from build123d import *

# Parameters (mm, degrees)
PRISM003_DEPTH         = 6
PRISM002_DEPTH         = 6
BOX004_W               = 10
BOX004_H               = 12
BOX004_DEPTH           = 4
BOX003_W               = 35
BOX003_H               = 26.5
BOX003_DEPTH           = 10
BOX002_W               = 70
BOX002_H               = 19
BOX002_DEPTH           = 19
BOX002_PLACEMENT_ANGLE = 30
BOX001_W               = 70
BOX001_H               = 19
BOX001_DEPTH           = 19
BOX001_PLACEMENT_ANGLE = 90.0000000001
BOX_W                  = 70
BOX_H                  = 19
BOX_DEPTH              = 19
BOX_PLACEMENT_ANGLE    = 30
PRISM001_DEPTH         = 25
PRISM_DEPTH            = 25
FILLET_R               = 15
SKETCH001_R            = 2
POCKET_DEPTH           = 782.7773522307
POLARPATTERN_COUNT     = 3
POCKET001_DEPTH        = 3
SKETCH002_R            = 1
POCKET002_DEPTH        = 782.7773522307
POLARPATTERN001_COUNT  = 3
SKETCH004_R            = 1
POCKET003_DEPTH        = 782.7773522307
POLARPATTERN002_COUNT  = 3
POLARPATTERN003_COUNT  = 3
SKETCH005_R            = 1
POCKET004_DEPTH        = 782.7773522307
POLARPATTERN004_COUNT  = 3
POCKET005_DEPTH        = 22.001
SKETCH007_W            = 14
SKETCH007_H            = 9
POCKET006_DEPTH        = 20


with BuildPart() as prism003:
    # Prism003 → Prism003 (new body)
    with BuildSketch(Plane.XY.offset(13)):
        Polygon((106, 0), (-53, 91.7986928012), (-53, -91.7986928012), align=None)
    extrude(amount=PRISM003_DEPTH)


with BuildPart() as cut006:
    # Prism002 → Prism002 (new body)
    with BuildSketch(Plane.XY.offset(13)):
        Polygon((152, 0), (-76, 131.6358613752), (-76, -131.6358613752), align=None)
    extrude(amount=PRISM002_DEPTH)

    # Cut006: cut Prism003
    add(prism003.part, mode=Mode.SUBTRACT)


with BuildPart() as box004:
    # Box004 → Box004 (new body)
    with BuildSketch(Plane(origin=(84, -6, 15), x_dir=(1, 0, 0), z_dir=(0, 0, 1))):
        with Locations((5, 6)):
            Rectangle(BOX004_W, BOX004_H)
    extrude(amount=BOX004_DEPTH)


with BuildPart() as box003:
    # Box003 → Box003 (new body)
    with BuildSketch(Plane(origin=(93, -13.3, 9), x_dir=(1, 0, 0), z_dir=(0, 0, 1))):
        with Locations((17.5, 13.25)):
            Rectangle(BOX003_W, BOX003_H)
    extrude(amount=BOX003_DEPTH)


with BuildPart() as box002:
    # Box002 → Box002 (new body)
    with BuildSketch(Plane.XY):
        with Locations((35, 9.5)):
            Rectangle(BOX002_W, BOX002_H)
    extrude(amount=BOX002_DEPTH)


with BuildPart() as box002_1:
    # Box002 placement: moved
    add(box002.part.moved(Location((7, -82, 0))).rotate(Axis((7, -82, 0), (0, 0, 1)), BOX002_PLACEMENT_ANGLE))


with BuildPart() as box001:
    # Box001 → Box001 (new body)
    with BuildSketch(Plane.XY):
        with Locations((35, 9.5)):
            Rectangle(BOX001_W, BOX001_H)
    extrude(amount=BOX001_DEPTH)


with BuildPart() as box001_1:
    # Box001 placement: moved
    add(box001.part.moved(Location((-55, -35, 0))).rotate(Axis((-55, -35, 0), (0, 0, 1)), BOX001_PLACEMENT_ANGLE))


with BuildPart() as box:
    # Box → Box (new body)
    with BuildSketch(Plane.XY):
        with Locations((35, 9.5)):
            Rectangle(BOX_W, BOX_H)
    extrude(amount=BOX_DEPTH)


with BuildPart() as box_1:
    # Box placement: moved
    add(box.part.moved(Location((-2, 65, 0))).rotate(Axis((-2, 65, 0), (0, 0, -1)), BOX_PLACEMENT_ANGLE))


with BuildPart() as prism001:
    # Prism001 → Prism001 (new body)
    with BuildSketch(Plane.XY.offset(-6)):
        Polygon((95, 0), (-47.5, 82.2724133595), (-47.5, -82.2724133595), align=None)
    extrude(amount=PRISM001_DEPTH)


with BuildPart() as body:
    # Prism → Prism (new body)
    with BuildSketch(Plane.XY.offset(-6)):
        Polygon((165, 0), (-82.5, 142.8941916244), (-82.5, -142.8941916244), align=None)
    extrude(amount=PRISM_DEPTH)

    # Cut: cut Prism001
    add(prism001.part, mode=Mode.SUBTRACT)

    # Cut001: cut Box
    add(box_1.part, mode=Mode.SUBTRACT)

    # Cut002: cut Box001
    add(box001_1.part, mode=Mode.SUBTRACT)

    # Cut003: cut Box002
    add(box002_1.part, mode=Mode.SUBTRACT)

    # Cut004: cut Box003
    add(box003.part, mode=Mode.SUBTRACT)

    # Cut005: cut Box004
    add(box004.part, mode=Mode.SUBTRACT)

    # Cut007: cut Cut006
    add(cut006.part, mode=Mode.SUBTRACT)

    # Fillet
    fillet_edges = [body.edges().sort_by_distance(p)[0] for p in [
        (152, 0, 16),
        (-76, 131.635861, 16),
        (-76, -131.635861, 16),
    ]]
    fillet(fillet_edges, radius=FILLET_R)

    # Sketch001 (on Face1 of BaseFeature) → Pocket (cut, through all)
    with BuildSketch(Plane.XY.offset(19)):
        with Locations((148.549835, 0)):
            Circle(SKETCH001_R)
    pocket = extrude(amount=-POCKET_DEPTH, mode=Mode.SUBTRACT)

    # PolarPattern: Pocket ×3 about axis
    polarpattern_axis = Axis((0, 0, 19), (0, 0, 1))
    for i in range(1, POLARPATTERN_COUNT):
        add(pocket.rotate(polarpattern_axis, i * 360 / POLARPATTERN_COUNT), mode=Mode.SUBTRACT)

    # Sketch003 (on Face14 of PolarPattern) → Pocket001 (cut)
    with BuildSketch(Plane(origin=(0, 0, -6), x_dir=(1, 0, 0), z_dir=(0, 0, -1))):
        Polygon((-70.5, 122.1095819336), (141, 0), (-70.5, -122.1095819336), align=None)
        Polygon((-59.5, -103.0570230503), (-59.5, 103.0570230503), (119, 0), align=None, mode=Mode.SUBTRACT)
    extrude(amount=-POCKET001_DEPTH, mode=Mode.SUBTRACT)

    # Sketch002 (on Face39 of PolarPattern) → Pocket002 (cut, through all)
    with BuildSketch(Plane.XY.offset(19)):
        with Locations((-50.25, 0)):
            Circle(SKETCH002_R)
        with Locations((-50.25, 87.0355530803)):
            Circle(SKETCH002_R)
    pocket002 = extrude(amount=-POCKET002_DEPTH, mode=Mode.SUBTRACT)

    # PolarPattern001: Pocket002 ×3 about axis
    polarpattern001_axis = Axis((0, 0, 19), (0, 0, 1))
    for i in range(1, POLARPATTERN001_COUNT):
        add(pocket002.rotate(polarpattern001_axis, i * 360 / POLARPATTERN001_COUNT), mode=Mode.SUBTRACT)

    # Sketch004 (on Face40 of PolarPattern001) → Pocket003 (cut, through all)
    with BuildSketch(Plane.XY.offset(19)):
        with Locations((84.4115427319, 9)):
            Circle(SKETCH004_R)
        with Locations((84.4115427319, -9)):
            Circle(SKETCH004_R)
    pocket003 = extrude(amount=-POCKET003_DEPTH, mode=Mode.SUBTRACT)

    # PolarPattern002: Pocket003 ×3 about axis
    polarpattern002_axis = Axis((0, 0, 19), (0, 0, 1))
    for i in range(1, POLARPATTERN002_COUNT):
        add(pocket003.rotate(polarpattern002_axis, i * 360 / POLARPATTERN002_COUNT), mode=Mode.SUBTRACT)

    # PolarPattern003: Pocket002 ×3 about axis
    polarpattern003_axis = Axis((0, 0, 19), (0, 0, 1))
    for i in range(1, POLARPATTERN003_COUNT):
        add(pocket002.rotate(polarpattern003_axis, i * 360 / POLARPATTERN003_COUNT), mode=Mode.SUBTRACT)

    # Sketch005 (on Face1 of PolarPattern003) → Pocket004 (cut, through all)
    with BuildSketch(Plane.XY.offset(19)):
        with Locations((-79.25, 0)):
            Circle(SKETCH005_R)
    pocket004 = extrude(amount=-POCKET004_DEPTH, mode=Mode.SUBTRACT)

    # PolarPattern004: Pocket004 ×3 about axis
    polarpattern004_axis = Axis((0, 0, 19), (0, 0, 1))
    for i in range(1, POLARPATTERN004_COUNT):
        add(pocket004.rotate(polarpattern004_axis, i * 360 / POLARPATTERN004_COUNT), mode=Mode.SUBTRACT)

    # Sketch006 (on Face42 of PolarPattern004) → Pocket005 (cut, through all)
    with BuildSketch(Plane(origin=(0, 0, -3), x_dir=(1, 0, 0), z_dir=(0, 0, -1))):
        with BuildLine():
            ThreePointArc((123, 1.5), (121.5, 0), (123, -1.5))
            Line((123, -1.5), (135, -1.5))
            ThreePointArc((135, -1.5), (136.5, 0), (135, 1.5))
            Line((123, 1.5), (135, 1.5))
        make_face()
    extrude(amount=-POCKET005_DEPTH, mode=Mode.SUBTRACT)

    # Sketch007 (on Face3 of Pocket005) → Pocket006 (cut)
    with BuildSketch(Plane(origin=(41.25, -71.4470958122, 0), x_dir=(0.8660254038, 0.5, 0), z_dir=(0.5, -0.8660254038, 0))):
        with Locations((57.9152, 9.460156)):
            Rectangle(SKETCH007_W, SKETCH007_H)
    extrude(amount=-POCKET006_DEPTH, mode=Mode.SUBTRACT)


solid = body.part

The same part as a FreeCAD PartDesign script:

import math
import FreeCAD as App
import Part
import Sketcher

V = App.Vector
Q = App.Units.Quantity


def edges_at(feature, points):
    """Names of the edges that pass closest to the given points."""
    edges = feature.Shape.Edges
    near = lambda p: min(range(len(edges)), key=lambda i: edges[i].distToShape(Part.Vertex(*p))[0])
    return sorted({f"Edge{near(p) + 1}" for p in points})

doc = App.newDocument("Part")
body = doc.addObject("PartDesign::Body", "Body")

# Sketch on XY plane
sketch1 = body.newObject("Sketcher::SketchObject", "Sketch")
sketch1.AttachmentSupport = (doc.getObject("XY_Plane"), [""])
sketch1.MapMode = "FlatFace"
sketch1.AttachmentOffset = App.Placement(V(0, 0, 13), App.Rotation())
sketch1.addGeometry([
    Part.LineSegment(V(106, 0, 0), V(-53, 91.798693, 0)),
    Part.LineSegment(V(-53, 91.798693, 0), V(-53, -91.798693, 0)),
    Part.LineSegment(V(-53, -91.798693, 0), V(106, 0, 0)),
], False)
sketch1.addConstraint([
    Sketcher.Constraint("Coincident", 0, 2, 1, 1),
    Sketcher.Constraint("Coincident", 1, 2, 2, 1),
    Sketcher.Constraint("Coincident", 2, 2, 0, 1),
    Sketcher.Constraint("Vertical", 1),
    Sketcher.Constraint("PointOnObject", 2, 2, -1),
    Sketcher.Constraint("Equal", 0, 2),
    Sketcher.Constraint("Angle", 0, Q("150 deg")),
    Sketcher.Constraint("DistanceX", 0, 2, -1, 1, 53.0),
    Sketcher.Constraint("DistanceX", -1, 1, 2, 2, 106.0),
])
pad1 = body.newObject("PartDesign::Pad", "Pad")
pad1.Profile = sketch1
pad1.Length = 6
body2 = doc.addObject("PartDesign::Body", "Body001")

# Sketch on XY plane
sketch2 = body2.newObject("Sketcher::SketchObject", "Sketch001")
sketch2.AttachmentSupport = (doc.getObject("XY_Plane001"), [""])
sketch2.MapMode = "FlatFace"
sketch2.AttachmentOffset = App.Placement(V(0, 0, 13), App.Rotation())
sketch2.addGeometry([
    Part.LineSegment(V(152, 0, 0), V(-76, 131.635861, 0)),
    Part.LineSegment(V(-76, 131.635861, 0), V(-76, -131.635861, 0)),
    Part.LineSegment(V(-76, -131.635861, 0), V(152, 0, 0)),
], False)
sketch2.addConstraint([
    Sketcher.Constraint("Coincident", 0, 2, 1, 1),
    Sketcher.Constraint("Coincident", 1, 2, 2, 1),
    Sketcher.Constraint("Coincident", 2, 2, 0, 1),
    Sketcher.Constraint("Vertical", 1),
    Sketcher.Constraint("PointOnObject", 2, 2, -1),
    Sketcher.Constraint("Equal", 0, 2),
    Sketcher.Constraint("Angle", 0, Q("150 deg")),
    Sketcher.Constraint("DistanceX", 0, 2, -1, 1, 76.0),
    Sketcher.Constraint("DistanceX", -1, 1, 2, 2, 152.0),
])
pad2 = body2.newObject("PartDesign::Pad", "Pad001")
pad2.Profile = sketch2
pad2.Length = 6
doc.recompute()

boolean = body2.newObject("PartDesign::Boolean", "Boolean")
boolean.Type = "Cut"
boolean.addObjects([body])
body3 = doc.addObject("PartDesign::Body", "Body002")

# Sketch on XY plane
sketch3 = body3.newObject("Sketcher::SketchObject", "Sketch002")
sketch3.AttachmentSupport = (doc.getObject("XY_Plane002"), [""])
sketch3.MapMode = "FlatFace"
sketch3.AttachmentOffset = App.Placement(V(0, 0, 15), App.Rotation())
sketch3.addGeometry([
    Part.LineSegment(V(84, 6, 0), V(84, -6, 0)),
    Part.LineSegment(V(84, -6, 0), V(94, -6, 0)),
    Part.LineSegment(V(94, -6, 0), V(94, 6, 0)),
    Part.LineSegment(V(94, 6, 0), V(84, 6, 0)),
], False)
sketch3.addConstraint([
    Sketcher.Constraint("Coincident", 0, 2, 1, 1),
    Sketcher.Constraint("Coincident", 1, 2, 2, 1),
    Sketcher.Constraint("Coincident", 2, 2, 3, 1),
    Sketcher.Constraint("Coincident", 3, 2, 0, 1),
    Sketcher.Constraint("Vertical", 0),
    Sketcher.Constraint("Horizontal", 1),
    Sketcher.Constraint("Vertical", 2),
    Sketcher.Constraint("Horizontal", 3),
    Sketcher.Constraint("DistanceX", 1, 1, 1, 2, 10.0),
    Sketcher.Constraint("DistanceY", 0, 2, 0, 1, 12.0),
    Sketcher.Constraint("DistanceX", -1, 1, 0, 2, 84.0),
    Sketcher.Constraint("DistanceY", 0, 2, -1, 1, 6.0),
])
pad3 = body3.newObject("PartDesign::Pad", "Pad002")
pad3.Profile = sketch3
pad3.Length = 4
body4 = doc.addObject("PartDesign::Body", "Body003")

# Sketch on XY plane
sketch4 = body4.newObject("Sketcher::SketchObject", "Sketch003")
sketch4.AttachmentSupport = (doc.getObject("XY_Plane003"), [""])
sketch4.MapMode = "FlatFace"
sketch4.AttachmentOffset = App.Placement(V(0, 0, 9), App.Rotation())
sketch4.addGeometry([
    Part.LineSegment(V(93, 13.2, 0), V(93, -13.3, 0)),
    Part.LineSegment(V(93, -13.3, 0), V(128, -13.3, 0)),
    Part.LineSegment(V(128, -13.3, 0), V(128, 13.2, 0)),
    Part.LineSegment(V(128, 13.2, 0), V(93, 13.2, 0)),
], False)
sketch4.addConstraint([
    Sketcher.Constraint("Coincident", 0, 2, 1, 1),
    Sketcher.Constraint("Coincident", 1, 2, 2, 1),
    Sketcher.Constraint("Coincident", 2, 2, 3, 1),
    Sketcher.Constraint("Coincident", 3, 2, 0, 1),
    Sketcher.Constraint("Vertical", 0),
    Sketcher.Constraint("Horizontal", 1),
    Sketcher.Constraint("Vertical", 2),
    Sketcher.Constraint("Horizontal", 3),
    Sketcher.Constraint("DistanceX", 1, 1, 1, 2, 35.0),
    Sketcher.Constraint("DistanceY", 0, 2, 0, 1, 26.5),
    Sketcher.Constraint("DistanceX", -1, 1, 0, 2, 93.0),
    Sketcher.Constraint("DistanceY", 0, 2, -1, 1, 13.3),
])
pad4 = body4.newObject("PartDesign::Pad", "Pad003")
pad4.Profile = sketch4
pad4.Length = 10
body5 = doc.addObject("PartDesign::Body", "Body004")

# Sketch on XY plane
sketch5 = body5.newObject("Sketcher::SketchObject", "Sketch004")
sketch5.AttachmentSupport = (doc.getObject("XY_Plane004"), [""])
sketch5.MapMode = "FlatFace"
sketch5.addGeometry([
    Part.LineSegment(V(0, 19, 0), V(0, 0, 0)),
    Part.LineSegment(V(0, 0, 0), V(70, 0, 0)),
    Part.LineSegment(V(70, 0, 0), V(70, 19, 0)),
    Part.LineSegment(V(70, 19, 0), V(0, 19, 0)),
], False)
sketch5.addConstraint([
    Sketcher.Constraint("Coincident", 0, 2, 1, 1),
    Sketcher.Constraint("Coincident", 1, 2, 2, 1),
    Sketcher.Constraint("Coincident", 2, 2, 3, 1),
    Sketcher.Constraint("Coincident", 3, 2, 0, 1),
    Sketcher.Constraint("Vertical", 0),
    Sketcher.Constraint("Horizontal", 1),
    Sketcher.Constraint("Vertical", 2),
    Sketcher.Constraint("Horizontal", 3),
    Sketcher.Constraint("Coincident", 0, 2, -1, 1),
    Sketcher.Constraint("DistanceX", 1, 1, 1, 2, 70.0),
    Sketcher.Constraint("DistanceY", 0, 2, 0, 1, 19.0),
])
pad5 = body5.newObject("PartDesign::Pad", "Pad004")
pad5.Profile = sketch5
pad5.Length = 19
body6 = doc.addObject("PartDesign::Body", "Body005")
doc.recompute()

body5.Placement = App.Placement(V(7, -82, 0), App.Rotation(V(0, 0, 1), 30))
boolean2 = body6.newObject("PartDesign::Boolean", "Boolean001")
boolean2.Type = "Fuse"
boolean2.addObjects([body5])
body7 = doc.addObject("PartDesign::Body", "Body006")

# Sketch on XY plane
sketch6 = body7.newObject("Sketcher::SketchObject", "Sketch005")
sketch6.AttachmentSupport = (doc.getObject("XY_Plane006"), [""])
sketch6.MapMode = "FlatFace"
sketch6.addGeometry([
    Part.LineSegment(V(0, 19, 0), V(0, 0, 0)),
    Part.LineSegment(V(0, 0, 0), V(70, 0, 0)),
    Part.LineSegment(V(70, 0, 0), V(70, 19, 0)),
    Part.LineSegment(V(70, 19, 0), V(0, 19, 0)),
], False)
sketch6.addConstraint([
    Sketcher.Constraint("Coincident", 0, 2, 1, 1),
    Sketcher.Constraint("Coincident", 1, 2, 2, 1),
    Sketcher.Constraint("Coincident", 2, 2, 3, 1),
    Sketcher.Constraint("Coincident", 3, 2, 0, 1),
    Sketcher.Constraint("Vertical", 0),
    Sketcher.Constraint("Horizontal", 1),
    Sketcher.Constraint("Vertical", 2),
    Sketcher.Constraint("Horizontal", 3),
    Sketcher.Constraint("Coincident", 0, 2, -1, 1),
    Sketcher.Constraint("DistanceX", 1, 1, 1, 2, 70.0),
    Sketcher.Constraint("DistanceY", 0, 2, 0, 1, 19.0),
])
pad6 = body7.newObject("PartDesign::Pad", "Pad005")
pad6.Profile = sketch6
pad6.Length = 19
body8 = doc.addObject("PartDesign::Body", "Body007")
doc.recompute()

body7.Placement = App.Placement(V(-55, -35, 0), App.Rotation(V(0, 0, 1), 90))
boolean3 = body8.newObject("PartDesign::Boolean", "Boolean002")
boolean3.Type = "Fuse"
boolean3.addObjects([body7])
body9 = doc.addObject("PartDesign::Body", "Body008")

# Sketch on XY plane
sketch7 = body9.newObject("Sketcher::SketchObject", "Sketch006")
sketch7.AttachmentSupport = (doc.getObject("XY_Plane008"), [""])
sketch7.MapMode = "FlatFace"
sketch7.addGeometry([
    Part.LineSegment(V(0, 19, 0), V(0, 0, 0)),
    Part.LineSegment(V(0, 0, 0), V(70, 0, 0)),
    Part.LineSegment(V(70, 0, 0), V(70, 19, 0)),
    Part.LineSegment(V(70, 19, 0), V(0, 19, 0)),
], False)
sketch7.addConstraint([
    Sketcher.Constraint("Coincident", 0, 2, 1, 1),
    Sketcher.Constraint("Coincident", 1, 2, 2, 1),
    Sketcher.Constraint("Coincident", 2, 2, 3, 1),
    Sketcher.Constraint("Coincident", 3, 2, 0, 1),
    Sketcher.Constraint("Vertical", 0),
    Sketcher.Constraint("Horizontal", 1),
    Sketcher.Constraint("Vertical", 2),
    Sketcher.Constraint("Horizontal", 3),
    Sketcher.Constraint("Coincident", 0, 2, -1, 1),
    Sketcher.Constraint("DistanceX", 1, 1, 1, 2, 70.0),
    Sketcher.Constraint("DistanceY", 0, 2, 0, 1, 19.0),
])
pad7 = body9.newObject("PartDesign::Pad", "Pad006")
pad7.Profile = sketch7
pad7.Length = 19
body10 = doc.addObject("PartDesign::Body", "Body009")
doc.recompute()

body9.Placement = App.Placement(V(-2, 65, 0), App.Rotation(V(0, 0, -1), 30))
boolean4 = body10.newObject("PartDesign::Boolean", "Boolean003")
boolean4.Type = "Fuse"
boolean4.addObjects([body9])
body11 = doc.addObject("PartDesign::Body", "Body010")

# Sketch on XY plane
sketch8 = body11.newObject("Sketcher::SketchObject", "Sketch007")
sketch8.AttachmentSupport = (doc.getObject("XY_Plane010"), [""])
sketch8.MapMode = "FlatFace"
sketch8.AttachmentOffset = App.Placement(V(0, 0, -6), App.Rotation())
sketch8.addGeometry([
    Part.LineSegment(V(95, 0, 0), V(-47.5, 82.272413, 0)),
    Part.LineSegment(V(-47.5, 82.272413, 0), V(-47.5, -82.272413, 0)),
    Part.LineSegment(V(-47.5, -82.272413, 0), V(95, 0, 0)),
], False)
sketch8.addConstraint([
    Sketcher.Constraint("Coincident", 0, 2, 1, 1),
    Sketcher.Constraint("Coincident", 1, 2, 2, 1),
    Sketcher.Constraint("Coincident", 2, 2, 0, 1),
    Sketcher.Constraint("Vertical", 1),
    Sketcher.Constraint("PointOnObject", 2, 2, -1),
    Sketcher.Constraint("Equal", 0, 2),
    Sketcher.Constraint("Angle", 0, Q("150 deg")),
    Sketcher.Constraint("DistanceX", -1, 1, 2, 2, 95.0),
    Sketcher.Constraint("DistanceX", 0, 2, -1, 1, 47.5),
])
pad8 = body11.newObject("PartDesign::Pad", "Pad007")
pad8.Profile = sketch8
pad8.Length = 25
body12 = doc.addObject("PartDesign::Body", "Body011")

# Sketch on XY plane
sketch9 = body12.newObject("Sketcher::SketchObject", "Sketch008")
sketch9.AttachmentSupport = (doc.getObject("XY_Plane011"), [""])
sketch9.MapMode = "FlatFace"
sketch9.AttachmentOffset = App.Placement(V(0, 0, -6), App.Rotation())
sketch9.addGeometry([
    Part.LineSegment(V(165, 0, 0), V(-82.5, 142.894192, 0)),
    Part.LineSegment(V(-82.5, 142.894192, 0), V(-82.5, -142.894192, 0)),
    Part.LineSegment(V(-82.5, -142.894192, 0), V(165, 0, 0)),
], False)
sketch9.addConstraint([
    Sketcher.Constraint("Coincident", 0, 2, 1, 1),
    Sketcher.Constraint("Coincident", 1, 2, 2, 1),
    Sketcher.Constraint("Coincident", 2, 2, 0, 1),
    Sketcher.Constraint("Vertical", 1),
    Sketcher.Constraint("PointOnObject", 2, 2, -1),
    Sketcher.Constraint("Equal", 0, 2),
    Sketcher.Constraint("Angle", 0, Q("150 deg")),
    Sketcher.Constraint("DistanceX", -1, 1, 2, 2, 165.0),
    Sketcher.Constraint("DistanceX", 0, 2, -1, 1, 82.5),
])
pad9 = body12.newObject("PartDesign::Pad", "Pad008")
pad9.Profile = sketch9
pad9.Length = 25
doc.recompute()

boolean5 = body12.newObject("PartDesign::Boolean", "Boolean004")
boolean5.Type = "Cut"
boolean5.addObjects([body11])
doc.recompute()

boolean6 = body12.newObject("PartDesign::Boolean", "Boolean005")
boolean6.Type = "Cut"
boolean6.addObjects([body10])
doc.recompute()

boolean7 = body12.newObject("PartDesign::Boolean", "Boolean006")
boolean7.Type = "Cut"
boolean7.addObjects([body8])
doc.recompute()

boolean8 = body12.newObject("PartDesign::Boolean", "Boolean007")
boolean8.Type = "Cut"
boolean8.addObjects([body6])
doc.recompute()

boolean9 = body12.newObject("PartDesign::Boolean", "Boolean008")
boolean9.Type = "Cut"
boolean9.addObjects([body4])
doc.recompute()

boolean10 = body12.newObject("PartDesign::Boolean", "Boolean009")
boolean10.Type = "Cut"
boolean10.addObjects([body3])
doc.recompute()

boolean11 = body12.newObject("PartDesign::Boolean", "Boolean010")
boolean11.Type = "Cut"
boolean11.addObjects([body2])
doc.recompute()

fillet = body12.newObject("PartDesign::Fillet", "Fillet")
fillet.Base = (boolean11, edges_at(boolean11, [(152, 0, 16), (-76, 131.636, 16), (-76, -131.636, 16)]))
fillet.Radius = 15

# Sketch on XY plane
sketch10 = body12.newObject("Sketcher::SketchObject", "Sketch009")
sketch10.AttachmentSupport = (doc.getObject("XY_Plane011"), [""])
sketch10.MapMode = "FlatFace"
sketch10.AttachmentOffset = App.Placement(V(0, 0, 19), App.Rotation())
sketch10.addGeometry(Part.Circle(V(148.549835, 0, 0), V(0, 0, 1), 2), False)
sketch10.addConstraint([
    Sketcher.Constraint("PointOnObject", 0, 3, -1),
    Sketcher.Constraint("Diameter", 0, 4.0),
    Sketcher.Constraint("DistanceX", -1, 1, 0, 3, 148.549835),
])
pocket1 = body12.newObject("PartDesign::Pocket", "Pocket")
pocket1.Profile = sketch10
pocket1.Type = "ThroughAll"
doc.recompute()

polarpattern = body12.newObject("PartDesign::PolarPattern", "PolarPattern")
polarpattern.Originals = [pocket1]
polarpattern.Axis = (doc.getObject("Z_Axis011"), [""])
polarpattern.Angle = 360
polarpattern.Occurrences = 3
body12.Tip = polarpattern

# Sketch on XY plane
sketch11 = body12.newObject("Sketcher::SketchObject", "Sketch010")
sketch11.AttachmentSupport = (doc.getObject("XY_Plane011"), [""])
sketch11.MapMode = "FlatFace"
sketch11.AttachmentOffset = App.Placement(V(0, 0, -6), App.Rotation())
sketch11.addGeometry([
    Part.LineSegment(V(141, 0, 0), V(-70.5, -122.109582, 0)),  # 0
    Part.LineSegment(V(-70.5, -122.109582, 0), V(-70.5, 122.109582, 0)),  # 1
    Part.LineSegment(V(-70.5, 122.109582, 0), V(141, 0, 0)),  # 2
    Part.LineSegment(V(-59.5, 103.057023, 0), V(-59.5, -103.057023, 0)),  # 3
    Part.LineSegment(V(-59.5, -103.057023, 0), V(119, 0, 0)),  # 4
    Part.LineSegment(V(119, 0, 0), V(-59.5, 103.057023, 0)),  # 5
], False)
sketch11.addConstraint([
    Sketcher.Constraint("Coincident", 0, 2, 1, 1),
    Sketcher.Constraint("Coincident", 1, 2, 2, 1),
    Sketcher.Constraint("Coincident", 2, 2, 0, 1),
    Sketcher.Constraint("Coincident", 3, 2, 4, 1),
    Sketcher.Constraint("Coincident", 4, 2, 5, 1),
    Sketcher.Constraint("Coincident", 5, 2, 3, 1),
    Sketcher.Constraint("Vertical", 1),
    Sketcher.Constraint("Vertical", 3),
    Sketcher.Constraint("PointOnObject", 2, 2, -1),
    Sketcher.Constraint("PointOnObject", 4, 2, -1),
    Sketcher.Constraint("Parallel", 0, 4),
    Sketcher.Constraint("Parallel", 2, 5),
    Sketcher.Constraint("Equal", 0, 2),
    Sketcher.Constraint("Angle", 0, Q("-150 deg")),
    Sketcher.Constraint("DistanceX", -1, 1, 2, 2, 141.0),
    Sketcher.Constraint("DistanceX", -1, 1, 4, 2, 119.0),
    Sketcher.Constraint("DistanceX", 0, 2, 3, 2, 11.0),
    Sketcher.Constraint("DistanceX", 0, 2, -1, 1, 70.5),
])
pocket2 = body12.newObject("PartDesign::Pocket", "Pocket001")
pocket2.Profile = sketch11
pocket2.Length = 3
pocket2.Reversed = True

# Sketch on XY plane
sketch12 = body12.newObject("Sketcher::SketchObject", "Sketch011")
sketch12.AttachmentSupport = (doc.getObject("XY_Plane011"), [""])
sketch12.MapMode = "FlatFace"
sketch12.AttachmentOffset = App.Placement(V(0, 0, 19), App.Rotation())
sketch12.addGeometry([
    Part.Circle(V(-50.25, 0, 0), V(0, 0, 1), 1),
    Part.Circle(V(-50.25, 87.035553, 0), V(0, 0, 1), 1),
], False)
sketch12.addConstraint([
    Sketcher.Constraint("Equal", 0, 1),
    Sketcher.Constraint("PointOnObject", 0, 3, -1),
    Sketcher.Constraint("Vertical", 0, 3, 1, 3),
    Sketcher.Constraint("Diameter", 0, 2.0),
    Sketcher.Constraint("DistanceX", 0, 3, -1, 1, 50.25),
    Sketcher.Constraint("DistanceY", -1, 1, 1, 3, 87.035553),
])
pocket3 = body12.newObject("PartDesign::Pocket", "Pocket002")
pocket3.Profile = sketch12
pocket3.Type = "ThroughAll"
doc.recompute()

polarpattern2 = body12.newObject("PartDesign::PolarPattern", "PolarPattern001")
polarpattern2.Originals = [pocket3]
polarpattern2.Axis = (doc.getObject("Z_Axis011"), [""])
polarpattern2.Angle = 360
polarpattern2.Occurrences = 3
body12.Tip = polarpattern2

# Sketch on XY plane
sketch13 = body12.newObject("Sketcher::SketchObject", "Sketch012")
sketch13.AttachmentSupport = (doc.getObject("XY_Plane011"), [""])
sketch13.MapMode = "FlatFace"
sketch13.AttachmentOffset = App.Placement(V(0, 0, 19), App.Rotation())
sketch13.addGeometry([
    Part.Circle(V(84.411543, 9, 0), V(0, 0, 1), 1),
    Part.Circle(V(84.411543, -9, 0), V(0, 0, 1), 1),
], False)
sketch13.addConstraint([
    Sketcher.Constraint("Equal", 0, 1),
    Sketcher.Constraint("Symmetric", 0, 3, 1, 3, -1),
    Sketcher.Constraint("Diameter", 0, 2.0),
    Sketcher.Constraint("DistanceY", -1, 1, 0, 3, 9.0),
    Sketcher.Constraint("DistanceX", -1, 1, 0, 3, 84.411543),
])
pocket4 = body12.newObject("PartDesign::Pocket", "Pocket003")
pocket4.Profile = sketch13
pocket4.Type = "ThroughAll"
doc.recompute()

polarpattern3 = body12.newObject("PartDesign::PolarPattern", "PolarPattern002")
polarpattern3.Originals = [pocket4]
polarpattern3.Axis = (doc.getObject("Z_Axis011"), [""])
polarpattern3.Angle = 360
polarpattern3.Occurrences = 3
body12.Tip = polarpattern3
doc.recompute()

polarpattern4 = body12.newObject("PartDesign::PolarPattern", "PolarPattern003")
polarpattern4.Originals = [pocket3]
polarpattern4.Axis = (doc.getObject("Z_Axis011"), [""])
polarpattern4.Angle = 360
polarpattern4.Occurrences = 3
body12.Tip = polarpattern4

# Sketch on XY plane
sketch14 = body12.newObject("Sketcher::SketchObject", "Sketch013")
sketch14.AttachmentSupport = (doc.getObject("XY_Plane011"), [""])
sketch14.MapMode = "FlatFace"
sketch14.AttachmentOffset = App.Placement(V(0, 0, 19), App.Rotation())
sketch14.addGeometry(Part.Circle(V(-79.25, 0, 0), V(0, 0, 1), 1), False)
sketch14.addConstraint([
    Sketcher.Constraint("PointOnObject", 0, 3, -1),
    Sketcher.Constraint("Diameter", 0, 2.0),
    Sketcher.Constraint("DistanceX", 0, 3, -1, 1, 79.25),
])
pocket5 = body12.newObject("PartDesign::Pocket", "Pocket004")
pocket5.Profile = sketch14
pocket5.Type = "ThroughAll"
doc.recompute()

polarpattern5 = body12.newObject("PartDesign::PolarPattern", "PolarPattern004")
polarpattern5.Originals = [pocket5]
polarpattern5.Axis = (doc.getObject("Z_Axis011"), [""])
polarpattern5.Angle = 360
polarpattern5.Occurrences = 3
body12.Tip = polarpattern5

# Sketch on XY plane
sketch15 = body12.newObject("Sketcher::SketchObject", "Sketch014")
sketch15.AttachmentSupport = (doc.getObject("XY_Plane011"), [""])
sketch15.MapMode = "FlatFace"
sketch15.AttachmentOffset = App.Placement(V(0, 0, -3), App.Rotation())
sketch15.addGeometry([
    Part.ArcOfCircle(Part.Circle(V(123, 0, 0), V(0, 0, 1), 1.5), math.radians(90), math.radians(270)),
    Part.LineSegment(V(123, 1.5, 0), V(135, 1.5, 0)),
    Part.ArcOfCircle(Part.Circle(V(135, 0, 0), V(0, 0, 1), 1.5), math.radians(-90), math.radians(90)),
    Part.LineSegment(V(135, -1.5, 0), V(123, -1.5, 0)),
], False)
sketch15.addConstraint([
    Sketcher.Constraint("Tangent", 0, 1, 1, 1),
    Sketcher.Constraint("Tangent", 1, 2, 2, 2),
    Sketcher.Constraint("Tangent", 2, 1, 3, 1),
    Sketcher.Constraint("Tangent", 3, 2, 0, 2),
    Sketcher.Constraint("Horizontal", 1),
    Sketcher.Constraint("Horizontal", 3),
    Sketcher.Constraint("PointOnObject", 0, 3, -1),
    Sketcher.Constraint("Radius", 0, 1.5),
    Sketcher.Constraint("DistanceX", 1, 1, 1, 2, 12.0),
    Sketcher.Constraint("DistanceX", -1, 1, 0, 3, 123.0),
])
pocket6 = body12.newObject("PartDesign::Pocket", "Pocket005")
pocket6.Profile = sketch15
pocket6.Type = "ThroughAll"
pocket6.Reversed = True

# Sketch on an angled plane
sketch16 = body12.newObject("Sketcher::SketchObject", "Sketch015")
sketch16.Placement = App.Placement(V(41.25, -71.447096, 0), App.Rotation(V(0.866025404, 0.5, 0), V(0, 0, 1), V(0.5, -0.866025404, 0), "ZXY"))
sketch16.addGeometry([
    Part.LineSegment(V(50.9152, 13.960156, 0), V(50.9152, 4.960156, 0)),
    Part.LineSegment(V(50.9152, 4.960156, 0), V(64.9152, 4.960156, 0)),
    Part.LineSegment(V(64.9152, 4.960156, 0), V(64.9152, 13.960156, 0)),
    Part.LineSegment(V(64.9152, 13.960156, 0), V(50.9152, 13.960156, 0)),
], False)
sketch16.addConstraint([
    Sketcher.Constraint("Coincident", 0, 2, 1, 1),
    Sketcher.Constraint("Coincident", 1, 2, 2, 1),
    Sketcher.Constraint("Coincident", 2, 2, 3, 1),
    Sketcher.Constraint("Coincident", 3, 2, 0, 1),
    Sketcher.Constraint("Vertical", 0),
    Sketcher.Constraint("Horizontal", 1),
    Sketcher.Constraint("Vertical", 2),
    Sketcher.Constraint("Horizontal", 3),
    Sketcher.Constraint("DistanceX", 1, 1, 1, 2, 14.0),
    Sketcher.Constraint("DistanceY", 0, 2, 0, 1, 9.0),
    Sketcher.Constraint("DistanceX", -1, 1, 0, 2, 50.9152),
    Sketcher.Constraint("DistanceY", -1, 1, 0, 2, 4.960156),
])
pocket7 = body12.newObject("PartDesign::Pocket", "Pocket006")
pocket7.Profile = sketch16
pocket7.Length = 20

doc.recompute()
